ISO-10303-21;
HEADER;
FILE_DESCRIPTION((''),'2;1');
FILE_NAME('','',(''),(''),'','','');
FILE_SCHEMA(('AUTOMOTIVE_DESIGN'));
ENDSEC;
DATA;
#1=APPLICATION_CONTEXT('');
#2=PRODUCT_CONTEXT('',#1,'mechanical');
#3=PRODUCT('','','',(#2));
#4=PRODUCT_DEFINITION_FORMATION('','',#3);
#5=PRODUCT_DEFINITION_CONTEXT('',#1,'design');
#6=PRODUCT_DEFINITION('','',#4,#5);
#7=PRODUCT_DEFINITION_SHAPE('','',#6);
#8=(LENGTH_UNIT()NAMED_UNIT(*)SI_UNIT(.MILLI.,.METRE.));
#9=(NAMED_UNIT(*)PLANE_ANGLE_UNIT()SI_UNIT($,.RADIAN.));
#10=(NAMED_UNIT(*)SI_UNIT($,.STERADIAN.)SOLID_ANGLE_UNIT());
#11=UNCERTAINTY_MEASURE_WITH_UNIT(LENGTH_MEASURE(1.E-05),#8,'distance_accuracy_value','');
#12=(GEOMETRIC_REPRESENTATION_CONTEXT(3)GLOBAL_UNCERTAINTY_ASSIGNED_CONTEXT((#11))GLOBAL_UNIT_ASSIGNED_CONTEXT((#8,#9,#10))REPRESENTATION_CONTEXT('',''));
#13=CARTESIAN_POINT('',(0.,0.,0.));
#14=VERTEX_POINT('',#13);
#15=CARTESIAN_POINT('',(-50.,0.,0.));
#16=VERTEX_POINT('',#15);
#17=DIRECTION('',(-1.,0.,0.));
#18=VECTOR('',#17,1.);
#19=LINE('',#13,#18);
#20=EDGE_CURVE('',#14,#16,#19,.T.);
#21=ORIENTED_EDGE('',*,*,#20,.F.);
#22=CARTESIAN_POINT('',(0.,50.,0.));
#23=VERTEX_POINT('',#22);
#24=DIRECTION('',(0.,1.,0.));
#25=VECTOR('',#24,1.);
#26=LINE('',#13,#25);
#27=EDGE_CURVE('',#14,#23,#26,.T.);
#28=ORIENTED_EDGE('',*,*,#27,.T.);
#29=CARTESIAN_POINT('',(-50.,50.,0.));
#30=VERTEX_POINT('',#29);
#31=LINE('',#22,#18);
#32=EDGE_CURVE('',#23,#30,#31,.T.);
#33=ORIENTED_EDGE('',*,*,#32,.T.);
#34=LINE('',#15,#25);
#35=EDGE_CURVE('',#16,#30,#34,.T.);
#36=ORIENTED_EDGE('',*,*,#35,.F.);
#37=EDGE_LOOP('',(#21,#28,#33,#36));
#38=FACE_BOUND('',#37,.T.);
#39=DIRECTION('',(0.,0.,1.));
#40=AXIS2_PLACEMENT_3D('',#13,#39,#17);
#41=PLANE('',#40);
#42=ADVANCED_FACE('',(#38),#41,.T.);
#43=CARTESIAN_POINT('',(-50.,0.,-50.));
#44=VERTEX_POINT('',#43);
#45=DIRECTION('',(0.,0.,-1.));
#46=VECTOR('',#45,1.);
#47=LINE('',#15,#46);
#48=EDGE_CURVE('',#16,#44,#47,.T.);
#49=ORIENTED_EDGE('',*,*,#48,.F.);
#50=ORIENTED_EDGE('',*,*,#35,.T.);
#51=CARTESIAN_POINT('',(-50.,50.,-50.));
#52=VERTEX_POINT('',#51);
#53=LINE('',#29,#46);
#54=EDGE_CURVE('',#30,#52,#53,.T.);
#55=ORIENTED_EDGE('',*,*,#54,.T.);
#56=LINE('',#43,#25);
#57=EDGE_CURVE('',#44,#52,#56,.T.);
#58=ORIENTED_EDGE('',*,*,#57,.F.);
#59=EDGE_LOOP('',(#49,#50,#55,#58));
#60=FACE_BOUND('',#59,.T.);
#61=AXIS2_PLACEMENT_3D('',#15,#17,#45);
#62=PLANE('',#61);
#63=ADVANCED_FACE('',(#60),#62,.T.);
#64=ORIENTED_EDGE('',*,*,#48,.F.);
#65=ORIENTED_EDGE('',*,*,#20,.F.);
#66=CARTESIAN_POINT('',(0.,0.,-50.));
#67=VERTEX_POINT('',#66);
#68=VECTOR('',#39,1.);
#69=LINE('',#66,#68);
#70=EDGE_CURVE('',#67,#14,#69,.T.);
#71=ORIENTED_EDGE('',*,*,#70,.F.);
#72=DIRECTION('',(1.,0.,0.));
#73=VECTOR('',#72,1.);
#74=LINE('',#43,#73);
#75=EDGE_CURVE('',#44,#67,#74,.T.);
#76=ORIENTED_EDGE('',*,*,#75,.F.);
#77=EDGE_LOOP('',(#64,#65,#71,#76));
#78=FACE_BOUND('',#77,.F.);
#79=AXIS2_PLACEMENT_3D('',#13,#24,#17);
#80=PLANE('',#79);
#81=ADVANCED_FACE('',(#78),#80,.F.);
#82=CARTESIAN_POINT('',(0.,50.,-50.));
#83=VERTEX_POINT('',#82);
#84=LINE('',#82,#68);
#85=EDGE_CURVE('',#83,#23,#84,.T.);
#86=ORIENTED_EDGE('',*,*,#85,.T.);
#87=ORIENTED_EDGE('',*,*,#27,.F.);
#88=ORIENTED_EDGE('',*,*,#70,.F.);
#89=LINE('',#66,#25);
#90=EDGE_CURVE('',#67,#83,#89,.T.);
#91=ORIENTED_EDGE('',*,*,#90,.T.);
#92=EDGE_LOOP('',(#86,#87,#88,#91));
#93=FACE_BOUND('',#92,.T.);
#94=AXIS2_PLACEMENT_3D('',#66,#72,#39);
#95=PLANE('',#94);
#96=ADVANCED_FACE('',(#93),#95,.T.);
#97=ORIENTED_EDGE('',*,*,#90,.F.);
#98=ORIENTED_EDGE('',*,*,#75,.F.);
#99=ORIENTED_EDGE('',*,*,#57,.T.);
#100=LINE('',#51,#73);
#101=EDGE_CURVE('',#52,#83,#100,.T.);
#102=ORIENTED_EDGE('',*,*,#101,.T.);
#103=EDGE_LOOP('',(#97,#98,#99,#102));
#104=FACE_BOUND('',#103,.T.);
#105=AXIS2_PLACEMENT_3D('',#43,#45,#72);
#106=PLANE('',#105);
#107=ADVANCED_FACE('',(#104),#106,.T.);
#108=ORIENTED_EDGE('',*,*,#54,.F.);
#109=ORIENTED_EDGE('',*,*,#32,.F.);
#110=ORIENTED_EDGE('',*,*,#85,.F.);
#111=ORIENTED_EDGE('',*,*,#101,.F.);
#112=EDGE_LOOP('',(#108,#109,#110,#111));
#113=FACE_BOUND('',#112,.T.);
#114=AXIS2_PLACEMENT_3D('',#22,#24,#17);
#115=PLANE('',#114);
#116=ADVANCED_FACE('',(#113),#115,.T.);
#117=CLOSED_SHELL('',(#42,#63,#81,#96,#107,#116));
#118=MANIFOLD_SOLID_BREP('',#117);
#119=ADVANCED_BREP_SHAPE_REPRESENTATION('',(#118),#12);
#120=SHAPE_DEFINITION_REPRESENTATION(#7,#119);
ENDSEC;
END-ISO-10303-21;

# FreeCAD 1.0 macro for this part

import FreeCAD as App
import Part
import Sketcher
from FreeCAD import Vector
Q = App.Units.Quantity

doc = App.newDocument("Part")
params = doc.addObject("Spreadsheet::Sheet", "Params")
for row, (alias, value) in enumerate([
    ("sketch1_width", "50 mm"),
    ("pad1_length", "50 mm"),
], start=1):
    params.set(f"A{row}", alias)
    params.set(f"B{row}", "=" + value)
    params.setAlias(f"B{row}", alias)

body = doc.addObject("PartDesign::Body", "Body")

sketch1 = body.newObject("Sketcher::SketchObject", "Sketch")
sketch1.AttachmentSupport = (doc.getObject("XZ_Plane"), [""])
sketch1.MapMode = "FlatFace"
sketch1.addGeometry([
    Part.LineSegment(Vector(-50, 0, 0), Vector(0, 0, 0)),
    Part.LineSegment(Vector(0, 0, 0), Vector(0, -50, 0)),
    Part.LineSegment(Vector(0, -50, 0), Vector(-50, -50, 0)),
    Part.LineSegment(Vector(-50, -50, 0), Vector(-50, 0, 0)),
], False)
sketch1.addConstraint([
    Sketcher.Constraint("Coincident", 0, 2, 1, 1),
    Sketcher.Constraint("Coincident", 1, 2, 2, 1),
    Sketcher.Constraint("Coincident", 2, 2, 3, 1),
    Sketcher.Constraint("Coincident", 3, 2, 0, 1),
    Sketcher.Constraint("Horizontal", 0),
    Sketcher.Constraint("Vertical", 1),
    Sketcher.Constraint("Horizontal", 2),
    Sketcher.Constraint("Vertical", 3),
    Sketcher.Constraint("Coincident", 0, 2, -1, 1),
    Sketcher.Constraint("Equal", 2, 1),
    Sketcher.Constraint("DistanceX", 0, 1, 0, 2, Q("50 mm")),
])
sketch1.setExpression("Constraints[10]", "Params.sketch1_width")
pad1 = body.newObject("PartDesign::Pad", "Pad")
pad1.Profile = sketch1
pad1.setExpression("Length", "Params.pad1_length")
pad1.Reversed = True

doc.recompute()
